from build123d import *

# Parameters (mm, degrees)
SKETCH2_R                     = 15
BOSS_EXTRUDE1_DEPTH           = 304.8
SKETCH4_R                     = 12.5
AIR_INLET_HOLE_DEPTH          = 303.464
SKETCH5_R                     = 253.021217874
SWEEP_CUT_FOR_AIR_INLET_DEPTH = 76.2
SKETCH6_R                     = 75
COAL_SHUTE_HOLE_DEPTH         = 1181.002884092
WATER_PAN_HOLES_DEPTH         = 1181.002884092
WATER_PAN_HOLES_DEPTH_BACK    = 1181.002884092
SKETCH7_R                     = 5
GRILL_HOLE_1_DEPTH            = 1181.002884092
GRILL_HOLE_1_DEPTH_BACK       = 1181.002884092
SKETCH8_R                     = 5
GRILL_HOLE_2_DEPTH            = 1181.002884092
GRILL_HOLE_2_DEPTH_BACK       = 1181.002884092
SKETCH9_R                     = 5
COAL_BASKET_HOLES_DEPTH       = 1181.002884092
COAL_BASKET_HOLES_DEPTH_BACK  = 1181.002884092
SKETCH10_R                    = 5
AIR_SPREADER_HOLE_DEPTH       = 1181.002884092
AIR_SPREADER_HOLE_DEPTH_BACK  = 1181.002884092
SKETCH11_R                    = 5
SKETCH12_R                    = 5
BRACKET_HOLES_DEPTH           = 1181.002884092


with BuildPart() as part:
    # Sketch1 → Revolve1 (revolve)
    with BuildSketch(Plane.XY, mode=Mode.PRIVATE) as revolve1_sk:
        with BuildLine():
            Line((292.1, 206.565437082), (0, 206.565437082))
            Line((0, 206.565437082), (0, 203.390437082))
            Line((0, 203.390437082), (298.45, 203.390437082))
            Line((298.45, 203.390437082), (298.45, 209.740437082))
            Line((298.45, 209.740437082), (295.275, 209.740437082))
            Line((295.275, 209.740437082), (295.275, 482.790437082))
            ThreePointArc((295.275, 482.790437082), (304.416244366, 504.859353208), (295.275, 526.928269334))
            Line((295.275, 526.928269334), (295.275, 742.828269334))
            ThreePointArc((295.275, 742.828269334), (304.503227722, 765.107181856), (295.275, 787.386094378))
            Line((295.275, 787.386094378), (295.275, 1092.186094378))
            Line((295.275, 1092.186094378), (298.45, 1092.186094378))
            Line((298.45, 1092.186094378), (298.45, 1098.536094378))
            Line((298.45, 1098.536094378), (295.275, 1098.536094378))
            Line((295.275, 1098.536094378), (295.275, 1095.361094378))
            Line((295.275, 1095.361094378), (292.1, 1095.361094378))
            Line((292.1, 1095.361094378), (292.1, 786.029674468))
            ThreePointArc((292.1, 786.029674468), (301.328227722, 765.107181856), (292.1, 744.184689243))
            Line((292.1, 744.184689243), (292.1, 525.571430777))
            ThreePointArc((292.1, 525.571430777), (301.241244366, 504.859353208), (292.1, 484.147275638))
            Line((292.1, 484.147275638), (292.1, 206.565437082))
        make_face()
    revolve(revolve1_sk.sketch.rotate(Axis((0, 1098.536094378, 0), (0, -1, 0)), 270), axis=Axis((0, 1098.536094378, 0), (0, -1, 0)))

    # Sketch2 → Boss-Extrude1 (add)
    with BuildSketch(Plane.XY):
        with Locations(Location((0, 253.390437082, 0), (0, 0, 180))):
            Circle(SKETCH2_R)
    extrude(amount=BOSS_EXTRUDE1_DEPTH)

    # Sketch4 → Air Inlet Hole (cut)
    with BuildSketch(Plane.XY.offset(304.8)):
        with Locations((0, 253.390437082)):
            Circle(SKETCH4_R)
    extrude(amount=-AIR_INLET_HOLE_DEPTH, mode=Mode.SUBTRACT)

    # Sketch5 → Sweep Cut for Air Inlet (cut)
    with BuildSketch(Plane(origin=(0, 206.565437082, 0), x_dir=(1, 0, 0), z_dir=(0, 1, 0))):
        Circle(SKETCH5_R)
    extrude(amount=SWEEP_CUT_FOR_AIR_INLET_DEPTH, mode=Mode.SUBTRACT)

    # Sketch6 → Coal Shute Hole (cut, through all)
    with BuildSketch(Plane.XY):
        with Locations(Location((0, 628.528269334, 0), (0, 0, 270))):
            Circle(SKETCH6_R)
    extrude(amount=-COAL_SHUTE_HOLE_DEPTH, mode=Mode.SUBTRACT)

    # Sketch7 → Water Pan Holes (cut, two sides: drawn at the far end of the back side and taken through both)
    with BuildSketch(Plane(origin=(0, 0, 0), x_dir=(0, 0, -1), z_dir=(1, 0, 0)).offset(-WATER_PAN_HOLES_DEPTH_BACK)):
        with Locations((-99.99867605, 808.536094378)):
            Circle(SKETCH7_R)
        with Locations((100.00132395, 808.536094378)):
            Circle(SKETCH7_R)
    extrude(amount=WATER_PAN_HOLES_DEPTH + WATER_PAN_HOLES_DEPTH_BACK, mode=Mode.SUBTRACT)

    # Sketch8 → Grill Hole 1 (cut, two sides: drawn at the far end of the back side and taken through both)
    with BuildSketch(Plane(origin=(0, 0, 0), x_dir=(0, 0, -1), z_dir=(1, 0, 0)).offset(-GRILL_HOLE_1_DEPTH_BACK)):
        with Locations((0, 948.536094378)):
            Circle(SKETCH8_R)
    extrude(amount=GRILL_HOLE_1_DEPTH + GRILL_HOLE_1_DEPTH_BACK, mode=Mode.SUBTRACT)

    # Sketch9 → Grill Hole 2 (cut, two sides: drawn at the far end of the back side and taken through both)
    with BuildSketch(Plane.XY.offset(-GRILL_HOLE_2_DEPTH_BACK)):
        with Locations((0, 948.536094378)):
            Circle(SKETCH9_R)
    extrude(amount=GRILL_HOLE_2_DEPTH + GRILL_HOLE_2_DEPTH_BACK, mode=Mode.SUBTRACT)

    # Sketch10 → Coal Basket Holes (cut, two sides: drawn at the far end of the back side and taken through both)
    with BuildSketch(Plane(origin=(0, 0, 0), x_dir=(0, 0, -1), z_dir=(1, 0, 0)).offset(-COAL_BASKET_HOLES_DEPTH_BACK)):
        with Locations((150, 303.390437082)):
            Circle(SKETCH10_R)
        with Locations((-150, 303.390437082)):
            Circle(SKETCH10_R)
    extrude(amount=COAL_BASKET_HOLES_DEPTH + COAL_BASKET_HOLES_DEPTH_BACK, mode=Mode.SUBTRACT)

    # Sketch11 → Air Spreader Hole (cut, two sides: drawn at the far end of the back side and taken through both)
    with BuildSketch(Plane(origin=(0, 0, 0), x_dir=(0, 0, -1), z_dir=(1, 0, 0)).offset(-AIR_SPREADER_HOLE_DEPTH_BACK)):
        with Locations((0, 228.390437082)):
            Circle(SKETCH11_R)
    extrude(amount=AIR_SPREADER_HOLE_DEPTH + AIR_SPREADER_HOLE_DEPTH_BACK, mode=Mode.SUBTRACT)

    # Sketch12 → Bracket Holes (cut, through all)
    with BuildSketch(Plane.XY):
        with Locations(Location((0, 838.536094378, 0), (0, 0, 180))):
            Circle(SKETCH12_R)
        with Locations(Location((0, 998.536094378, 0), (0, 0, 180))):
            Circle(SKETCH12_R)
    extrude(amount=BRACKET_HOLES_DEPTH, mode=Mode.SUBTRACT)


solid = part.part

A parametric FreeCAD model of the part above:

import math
import FreeCAD as App
import Part
import Sketcher
Q = App.Units.Quantity

doc = App.newDocument("Part")
body = doc.addObject("PartDesign::Body", "Body")

sketch1 = body.newObject("Sketcher::SketchObject", "Sketch")
sketch1.AttachmentSupport = (doc.getObject("XY_Plane"), [""])
sketch1.MapMode = "FlatFace"
sketch1.addGeometry([
    Part.LineSegment(App.Vector(292.1, 206.6, 0), App.Vector(0, 206.6, 0)),
    Part.LineSegment(App.Vector(0, 206.6, 0), App.Vector(0, 203.4, 0)),
    Part.LineSegment(App.Vector(0, 203.4, 0), App.Vector(298.4, 203.4, 0)),
    Part.LineSegment(App.Vector(298.4, 203.4, 0), App.Vector(298.4, 209.7, 0)),
    Part.LineSegment(App.Vector(298.4, 209.7, 0), App.Vector(295.3, 209.7, 0)),
    Part.LineSegment(App.Vector(295.3, 209.7, 0), App.Vector(295.3, 482.8, 0)),
    Part.ArcOfCircle(Part.Circle(App.Vector(273.2, 504.9, 0), App.Vector(0, 0, 1), 31.2), math.radians(-45), math.radians(45)),
    Part.LineSegment(App.Vector(295.3, 526.9, 0), App.Vector(295.3, 742.8, 0)),
    Part.ArcOfCircle(Part.Circle(App.Vector(273, 765.1, 0), App.Vector(0, 0, 1), 31.5), math.radians(-45), math.radians(45)),
    Part.LineSegment(App.Vector(295.3, 787.4, 0), App.Vector(295.3, 1092.2, 0)),
    Part.LineSegment(App.Vector(295.3, 1092.2, 0), App.Vector(298.4, 1092.2, 0)),
    Part.LineSegment(App.Vector(298.4, 1092.2, 0), App.Vector(298.4, 1098.5, 0)),
    Part.LineSegment(App.Vector(298.4, 1098.5, 0), App.Vector(295.3, 1098.5, 0)),
    Part.LineSegment(App.Vector(295.3, 1098.5, 0), App.Vector(295.3, 1095.4, 0)),
    Part.LineSegment(App.Vector(295.3, 1095.4, 0), App.Vector(292.1, 1095.4, 0)),
    Part.LineSegment(App.Vector(292.1, 1095.4, 0), App.Vector(292.1, 786, 0)),
    Part.ArcOfCircle(Part.Circle(App.Vector(273, 765.1, 0), App.Vector(0, 0, 1), 28.3), math.radians(-48), math.radians(48)),
    Part.LineSegment(App.Vector(292.1, 744.2, 0), App.Vector(292.1, 525.6, 0)),
    Part.ArcOfCircle(Part.Circle(App.Vector(273.2, 504.9, 0), App.Vector(0, 0, 1), 28), math.radians(-48), math.radians(48)),
    Part.LineSegment(App.Vector(292.1, 484.1, 0), App.Vector(292.1, 206.6, 0)),
], False)
sketch1.addConstraint([
    Sketcher.Constraint("Coincident", 0, 2, 1, 1),
    Sketcher.Constraint("Coincident", 1, 2, 2, 1),
    Sketcher.Constraint("Coincident", 2, 2, 3, 1),
    Sketcher.Constraint("Coincident", 3, 2, 4, 1),
    Sketcher.Constraint("Coincident", 4, 2, 5, 1),
    Sketcher.Constraint("Coincident", 5, 2, 6, 1),
    Sketcher.Constraint("Coincident", 6, 2, 7, 1),
    Sketcher.Constraint("Coincident", 7, 2, 8, 1),
    Sketcher.Constraint("Coincident", 8, 2, 9, 1),
    Sketcher.Constraint("Coincident", 9, 2, 10, 1),
    Sketcher.Constraint("Coincident", 10, 2, 11, 1),
    Sketcher.Constraint("Coincident", 11, 2, 12, 1),
    Sketcher.Constraint("Coincident", 12, 2, 13, 1),
    Sketcher.Constraint("Coincident", 13, 2, 14, 1),
    Sketcher.Constraint("Coincident", 14, 2, 15, 1),
    Sketcher.Constraint("Coincident", 15, 2, 16, 2),
    Sketcher.Constraint("Coincident", 16, 1, 17, 1),
    Sketcher.Constraint("Coincident", 17, 2, 18, 2),
    Sketcher.Constraint("Coincident", 18, 1, 19, 1),
    Sketcher.Constraint("Coincident", 19, 2, 0, 1),
    Sketcher.Constraint("Horizontal", 0),
    Sketcher.Constraint("Vertical", 1),
    Sketcher.Constraint("Horizontal", 2),
    Sketcher.Constraint("Vertical", 3),
    Sketcher.Constraint("Horizontal", 4),
    Sketcher.Constraint("Vertical", 5),
    Sketcher.Constraint("Vertical", 7),
    Sketcher.Constraint("Vertical", 9),
    Sketcher.Constraint("Horizontal", 10),
    Sketcher.Constraint("Vertical", 11),
    Sketcher.Constraint("Horizontal", 12),
    Sketcher.Constraint("Vertical", 13),
    Sketcher.Constraint("Horizontal", 14),
    Sketcher.Constraint("Vertical", 15),
    Sketcher.Constraint("Vertical", 17),
    Sketcher.Constraint("Vertical", 19),
    Sketcher.Constraint("Coincident", 16, 3, 8, 3),
    Sketcher.Constraint("Coincident", 18, 3, 6, 3),
    Sketcher.Constraint("PointOnObject", 0, 2, -2),
    Sketcher.Constraint("Vertical", 5, 2, 6, 2),
    Sketcher.Constraint("Vertical", 7, 2, 8, 2),
    Sketcher.Constraint("Vertical", 3, 2, 10, 2),
    Sketcher.Constraint("Vertical", 9, 2, 12, 2),
    Sketcher.Constraint("Vertical", 15, 2, 16, 1),
    Sketcher.Constraint("Vertical", 17, 2, 18, 1),
    Sketcher.Constraint("Equal", 12, 14),
    Sketcher.Constraint("Equal", 14, 1),
    Sketcher.Constraint("Equal", 3, 11),
    Sketcher.Constraint("Equal", 1, 13),
    Sketcher.Constraint("DistanceY", 9, 1, 9, 2, Q("12 in")),
    Sketcher.Constraint("DistanceX", 0, 2, 0, 1, Q("11.5 in")),
    Sketcher.Constraint("DistanceY", 7, 1, 7, 2, Q("8.5 in")),
    Sketcher.Constraint("DistanceY", 2, 2, 5, 2, Q("11 in")),
    Sketcher.Constraint("DistanceX", 2, 1, 2, 2, Q("11.75 in")),
    Sketcher.Constraint("DistanceY", 3, 1, 3, 2, Q("0.25 in")),
    Sketcher.Constraint("Radius", 6, Q("31.21016 mm")),
    Sketcher.Constraint("Radius", 8, Q("31.50714 mm")),
    Sketcher.Constraint("Radius", 16, Q("28.33214 mm")),
    Sketcher.Constraint("Radius", 18, Q("28.03516 mm")),
    Sketcher.Constraint("DistanceY", 18, 3, 8, 2, Q("11.1231 in")),
    Sketcher.Constraint("DistanceY", 15, 2, 15, 1, Q("309.33142 mm")),
    Sketcher.Constraint("DistanceY", -1, 1, 8, 3, Q("765.107182 mm")),
])
revolution = body.newObject("PartDesign::Revolution", "Revolution")
revolution.Profile = sketch1
revolution.ReferenceAxis = (sketch1, ["V_Axis"])
revolution.Angle = 360

sketch2 = body.newObject("Sketcher::SketchObject", "Sketch001")
sketch2.AttachmentSupport = (doc.getObject("XY_Plane"), [""])
sketch2.MapMode = "FlatFace"
sketch2.addGeometry(Part.Circle(App.Vector(0, 253, 0), App.Vector(0, 0, 1), 15), False)
sketch2.addConstraint([
    Sketcher.Constraint("PointOnObject", 0, 3, -2),
    Sketcher.Constraint("Diameter", 0, Q("30 mm")),
    Sketcher.Constraint("DistanceY", -1, 1, 0, 3, Q("253.390437 mm")),
])
pad1 = body.newObject("PartDesign::Pad", "Pad")
pad1.Profile = sketch2
pad1.Length = Q("12 in")

sketch3 = body.newObject("Sketcher::SketchObject", "Sketch002")
sketch3.AttachmentSupport = (doc.getObject("XY_Plane"), [""])
sketch3.MapMode = "FlatFace"
sketch3.AttachmentOffset = App.Placement(App.Vector(0, 0, 12 * 25.4), App.Rotation())
sketch3.addGeometry(Part.Circle(App.Vector(0, 253, 0), App.Vector(0, 0, 1), 12), False)
sketch3.addConstraint([
    Sketcher.Constraint("PointOnObject", 0, 3, -2),
    Sketcher.Constraint("Diameter", 0, Q("25 mm")),
    Sketcher.Constraint("DistanceY", -1, 1, 0, 3, Q("253.390437 mm")),
])
pocket1 = body.newObject("PartDesign::Pocket", "Pocket")
pocket1.Profile = sketch3
pocket1.Length = 303.464

sketch4 = body.newObject("Sketcher::SketchObject", "Sketch003")
sketch4.AttachmentSupport = (doc.getObject("XZ_Plane"), [""])
sketch4.MapMode = "FlatFace"
sketch4.AttachmentOffset = App.Placement(App.Vector(0, 0, -206.565437), App.Rotation())
sketch4.addGeometry(Part.Circle(App.Vector(0, 0, 0), App.Vector(0, 0, 1), 253), False)
sketch4.addConstraint([
    Sketcher.Constraint("Coincident", 0, 3, -1, 1),
    Sketcher.Constraint("Diameter", 0, Q("506.042436 mm")),
])
pocket2 = body.newObject("PartDesign::Pocket", "Pocket001")
pocket2.Profile = sketch4
pocket2.Length = Q("3 in")

sketch5 = body.newObject("Sketcher::SketchObject", "Sketch004")
sketch5.AttachmentSupport = (doc.getObject("XY_Plane"), [""])
sketch5.MapMode = "FlatFace"
sketch5.addGeometry(Part.Circle(App.Vector(0, 629, 0), App.Vector(0, 0, 1), 75), False)
sketch5.addConstraint([
    Sketcher.Constraint("PointOnObject", 0, 3, -2),
    Sketcher.Constraint("Diameter", 0, Q("150 mm")),
    Sketcher.Constraint("DistanceY", -1, 1, 0, 3, Q("628.528269 mm")),
])
pocket3 = body.newObject("PartDesign::Pocket", "Pocket002")
pocket3.Profile = sketch5
pocket3.Type = "ThroughAll"

sketch6 = body.newObject("Sketcher::SketchObject", "Sketch005")
sketch6.AttachmentSupport = (doc.getObject("YZ_Plane"), [""])
sketch6.MapMode = "FlatFace"
sketch6.addGeometry([
    Part.Circle(App.Vector(809, 100, 0), App.Vector(0, 0, 1), 5),
    Part.Circle(App.Vector(809, -100, 0), App.Vector(0, 0, 1), 5),
], False)
sketch6.addConstraint([
    Sketcher.Constraint("Equal", 0, 1),
    Sketcher.Constraint("Vertical", 0, 3, 1, 3),
    Sketcher.Constraint("Diameter", 0, Q("10 mm")),
    Sketcher.Constraint("DistanceY", 1, 3, 0, 3, Q("200 mm")),
    Sketcher.Constraint("DistanceX", -1, 1, 0, 3, Q("808.536094 mm")),
    Sketcher.Constraint("DistanceY", -1, 1, 0, 3, Q("99.998676 mm")),
])
pocket4 = body.newObject("PartDesign::Pocket", "Pocket003")
pocket4.Profile = sketch6
pocket4.Type = "ThroughAll"
pocket4.Midplane = True

sketch7 = body.newObject("Sketcher::SketchObject", "Sketch006")
sketch7.AttachmentSupport = (doc.getObject("YZ_Plane"), [""])
sketch7.MapMode = "FlatFace"
sketch7.addGeometry(Part.Circle(App.Vector(949, 0, 0), App.Vector(0, 0, 1), 5), False)
sketch7.addConstraint([
    Sketcher.Constraint("PointOnObject", 0, 3, -1),
    Sketcher.Constraint("Diameter", 0, Q("10 mm")),
    Sketcher.Constraint("DistanceX", -1, 1, 0, 3, Q("948.536094 mm")),
])
pocket5 = body.newObject("PartDesign::Pocket", "Pocket004")
pocket5.Profile = sketch7
pocket5.Type = "ThroughAll"
pocket5.Midplane = True

sketch8 = body.newObject("Sketcher::SketchObject", "Sketch007")
sketch8.AttachmentSupport = (doc.getObject("XY_Plane"), [""])
sketch8.MapMode = "FlatFace"
sketch8.addGeometry(Part.Circle(App.Vector(0, 949, 0), App.Vector(0, 0, 1), 5), False)
sketch8.addConstraint([
    Sketcher.Constraint("PointOnObject", 0, 3, -2),
    Sketcher.Constraint("Diameter", 0, Q("10 mm")),
    Sketcher.Constraint("DistanceY", -1, 1, 0, 3, Q("948.536094 mm")),
])
pocket6 = body.newObject("PartDesign::Pocket", "Pocket005")
pocket6.Profile = sketch8
pocket6.Type = "ThroughAll"
pocket6.Midplane = True

sketch9 = body.newObject("Sketcher::SketchObject", "Sketch008")
sketch9.AttachmentSupport = (doc.getObject("YZ_Plane"), [""])
sketch9.MapMode = "FlatFace"
sketch9.addGeometry([
    Part.Circle(App.Vector(303, -150, 0), App.Vector(0, 0, 1), 5),
    Part.Circle(App.Vector(303, 150, 0), App.Vector(0, 0, 1), 5),
], False)
sketch9.addConstraint([
    Sketcher.Constraint("Equal", 0, 1),
    Sketcher.Constraint("Symmetric", 0, 3, 1, 3, -1),
    Sketcher.Constraint("Diameter", 0, Q("10 mm")),
    Sketcher.Constraint("DistanceY", 0, 3, -1, 1, Q("150 mm")),
    Sketcher.Constraint("DistanceX", -1, 1, 0, 3, Q("303.390437 mm")),
])
pocket7 = body.newObject("PartDesign::Pocket", "Pocket006")
pocket7.Profile = sketch9
pocket7.Type = "ThroughAll"
pocket7.Midplane = True

sketch10 = body.newObject("Sketcher::SketchObject", "Sketch009")
sketch10.AttachmentSupport = (doc.getObject("YZ_Plane"), [""])
sketch10.MapMode = "FlatFace"
sketch10.addGeometry(Part.Circle(App.Vector(228, 0, 0), App.Vector(0, 0, 1), 5), False)
sketch10.addConstraint([
    Sketcher.Constraint("PointOnObject", 0, 3, -1),
    Sketcher.Constraint("Diameter", 0, Q("10 mm")),
    Sketcher.Constraint("DistanceX", -1, 1, 0, 3, Q("228.390437 mm")),
])
pocket8 = body.newObject("PartDesign::Pocket", "Pocket007")
pocket8.Profile = sketch10
pocket8.Type = "ThroughAll"
pocket8.Midplane = True

sketch11 = body.newObject("Sketcher::SketchObject", "Sketch010")
sketch11.AttachmentSupport = (doc.getObject("XY_Plane"), [""])
sketch11.MapMode = "FlatFace"
sketch11.addGeometry([
    Part.Circle(App.Vector(0, 839, 0), App.Vector(0, 0, 1), 5),
    Part.Circle(App.Vector(0, 999, 0), App.Vector(0, 0, 1), 5),
], False)
sketch11.addConstraint([
    Sketcher.Constraint("Equal", 0, 1),
    Sketcher.Constraint("PointOnObject", 0, 3, -2),
    Sketcher.Constraint("PointOnObject", 1, 3, -2),
    Sketcher.Constraint("Diameter", 0, Q("10 mm")),
    Sketcher.Constraint("DistanceY", 0, 3, 1, 3, Q("160 mm")),
    Sketcher.Constraint("DistanceY", -1, 1, 0, 3, Q("838.536094 mm")),
])
pocket9 = body.newObject("PartDesign::Pocket", "Pocket008")
pocket9.Profile = sketch11
pocket9.Type = "ThroughAll"
pocket9.Reversed = True

doc.recompute()
